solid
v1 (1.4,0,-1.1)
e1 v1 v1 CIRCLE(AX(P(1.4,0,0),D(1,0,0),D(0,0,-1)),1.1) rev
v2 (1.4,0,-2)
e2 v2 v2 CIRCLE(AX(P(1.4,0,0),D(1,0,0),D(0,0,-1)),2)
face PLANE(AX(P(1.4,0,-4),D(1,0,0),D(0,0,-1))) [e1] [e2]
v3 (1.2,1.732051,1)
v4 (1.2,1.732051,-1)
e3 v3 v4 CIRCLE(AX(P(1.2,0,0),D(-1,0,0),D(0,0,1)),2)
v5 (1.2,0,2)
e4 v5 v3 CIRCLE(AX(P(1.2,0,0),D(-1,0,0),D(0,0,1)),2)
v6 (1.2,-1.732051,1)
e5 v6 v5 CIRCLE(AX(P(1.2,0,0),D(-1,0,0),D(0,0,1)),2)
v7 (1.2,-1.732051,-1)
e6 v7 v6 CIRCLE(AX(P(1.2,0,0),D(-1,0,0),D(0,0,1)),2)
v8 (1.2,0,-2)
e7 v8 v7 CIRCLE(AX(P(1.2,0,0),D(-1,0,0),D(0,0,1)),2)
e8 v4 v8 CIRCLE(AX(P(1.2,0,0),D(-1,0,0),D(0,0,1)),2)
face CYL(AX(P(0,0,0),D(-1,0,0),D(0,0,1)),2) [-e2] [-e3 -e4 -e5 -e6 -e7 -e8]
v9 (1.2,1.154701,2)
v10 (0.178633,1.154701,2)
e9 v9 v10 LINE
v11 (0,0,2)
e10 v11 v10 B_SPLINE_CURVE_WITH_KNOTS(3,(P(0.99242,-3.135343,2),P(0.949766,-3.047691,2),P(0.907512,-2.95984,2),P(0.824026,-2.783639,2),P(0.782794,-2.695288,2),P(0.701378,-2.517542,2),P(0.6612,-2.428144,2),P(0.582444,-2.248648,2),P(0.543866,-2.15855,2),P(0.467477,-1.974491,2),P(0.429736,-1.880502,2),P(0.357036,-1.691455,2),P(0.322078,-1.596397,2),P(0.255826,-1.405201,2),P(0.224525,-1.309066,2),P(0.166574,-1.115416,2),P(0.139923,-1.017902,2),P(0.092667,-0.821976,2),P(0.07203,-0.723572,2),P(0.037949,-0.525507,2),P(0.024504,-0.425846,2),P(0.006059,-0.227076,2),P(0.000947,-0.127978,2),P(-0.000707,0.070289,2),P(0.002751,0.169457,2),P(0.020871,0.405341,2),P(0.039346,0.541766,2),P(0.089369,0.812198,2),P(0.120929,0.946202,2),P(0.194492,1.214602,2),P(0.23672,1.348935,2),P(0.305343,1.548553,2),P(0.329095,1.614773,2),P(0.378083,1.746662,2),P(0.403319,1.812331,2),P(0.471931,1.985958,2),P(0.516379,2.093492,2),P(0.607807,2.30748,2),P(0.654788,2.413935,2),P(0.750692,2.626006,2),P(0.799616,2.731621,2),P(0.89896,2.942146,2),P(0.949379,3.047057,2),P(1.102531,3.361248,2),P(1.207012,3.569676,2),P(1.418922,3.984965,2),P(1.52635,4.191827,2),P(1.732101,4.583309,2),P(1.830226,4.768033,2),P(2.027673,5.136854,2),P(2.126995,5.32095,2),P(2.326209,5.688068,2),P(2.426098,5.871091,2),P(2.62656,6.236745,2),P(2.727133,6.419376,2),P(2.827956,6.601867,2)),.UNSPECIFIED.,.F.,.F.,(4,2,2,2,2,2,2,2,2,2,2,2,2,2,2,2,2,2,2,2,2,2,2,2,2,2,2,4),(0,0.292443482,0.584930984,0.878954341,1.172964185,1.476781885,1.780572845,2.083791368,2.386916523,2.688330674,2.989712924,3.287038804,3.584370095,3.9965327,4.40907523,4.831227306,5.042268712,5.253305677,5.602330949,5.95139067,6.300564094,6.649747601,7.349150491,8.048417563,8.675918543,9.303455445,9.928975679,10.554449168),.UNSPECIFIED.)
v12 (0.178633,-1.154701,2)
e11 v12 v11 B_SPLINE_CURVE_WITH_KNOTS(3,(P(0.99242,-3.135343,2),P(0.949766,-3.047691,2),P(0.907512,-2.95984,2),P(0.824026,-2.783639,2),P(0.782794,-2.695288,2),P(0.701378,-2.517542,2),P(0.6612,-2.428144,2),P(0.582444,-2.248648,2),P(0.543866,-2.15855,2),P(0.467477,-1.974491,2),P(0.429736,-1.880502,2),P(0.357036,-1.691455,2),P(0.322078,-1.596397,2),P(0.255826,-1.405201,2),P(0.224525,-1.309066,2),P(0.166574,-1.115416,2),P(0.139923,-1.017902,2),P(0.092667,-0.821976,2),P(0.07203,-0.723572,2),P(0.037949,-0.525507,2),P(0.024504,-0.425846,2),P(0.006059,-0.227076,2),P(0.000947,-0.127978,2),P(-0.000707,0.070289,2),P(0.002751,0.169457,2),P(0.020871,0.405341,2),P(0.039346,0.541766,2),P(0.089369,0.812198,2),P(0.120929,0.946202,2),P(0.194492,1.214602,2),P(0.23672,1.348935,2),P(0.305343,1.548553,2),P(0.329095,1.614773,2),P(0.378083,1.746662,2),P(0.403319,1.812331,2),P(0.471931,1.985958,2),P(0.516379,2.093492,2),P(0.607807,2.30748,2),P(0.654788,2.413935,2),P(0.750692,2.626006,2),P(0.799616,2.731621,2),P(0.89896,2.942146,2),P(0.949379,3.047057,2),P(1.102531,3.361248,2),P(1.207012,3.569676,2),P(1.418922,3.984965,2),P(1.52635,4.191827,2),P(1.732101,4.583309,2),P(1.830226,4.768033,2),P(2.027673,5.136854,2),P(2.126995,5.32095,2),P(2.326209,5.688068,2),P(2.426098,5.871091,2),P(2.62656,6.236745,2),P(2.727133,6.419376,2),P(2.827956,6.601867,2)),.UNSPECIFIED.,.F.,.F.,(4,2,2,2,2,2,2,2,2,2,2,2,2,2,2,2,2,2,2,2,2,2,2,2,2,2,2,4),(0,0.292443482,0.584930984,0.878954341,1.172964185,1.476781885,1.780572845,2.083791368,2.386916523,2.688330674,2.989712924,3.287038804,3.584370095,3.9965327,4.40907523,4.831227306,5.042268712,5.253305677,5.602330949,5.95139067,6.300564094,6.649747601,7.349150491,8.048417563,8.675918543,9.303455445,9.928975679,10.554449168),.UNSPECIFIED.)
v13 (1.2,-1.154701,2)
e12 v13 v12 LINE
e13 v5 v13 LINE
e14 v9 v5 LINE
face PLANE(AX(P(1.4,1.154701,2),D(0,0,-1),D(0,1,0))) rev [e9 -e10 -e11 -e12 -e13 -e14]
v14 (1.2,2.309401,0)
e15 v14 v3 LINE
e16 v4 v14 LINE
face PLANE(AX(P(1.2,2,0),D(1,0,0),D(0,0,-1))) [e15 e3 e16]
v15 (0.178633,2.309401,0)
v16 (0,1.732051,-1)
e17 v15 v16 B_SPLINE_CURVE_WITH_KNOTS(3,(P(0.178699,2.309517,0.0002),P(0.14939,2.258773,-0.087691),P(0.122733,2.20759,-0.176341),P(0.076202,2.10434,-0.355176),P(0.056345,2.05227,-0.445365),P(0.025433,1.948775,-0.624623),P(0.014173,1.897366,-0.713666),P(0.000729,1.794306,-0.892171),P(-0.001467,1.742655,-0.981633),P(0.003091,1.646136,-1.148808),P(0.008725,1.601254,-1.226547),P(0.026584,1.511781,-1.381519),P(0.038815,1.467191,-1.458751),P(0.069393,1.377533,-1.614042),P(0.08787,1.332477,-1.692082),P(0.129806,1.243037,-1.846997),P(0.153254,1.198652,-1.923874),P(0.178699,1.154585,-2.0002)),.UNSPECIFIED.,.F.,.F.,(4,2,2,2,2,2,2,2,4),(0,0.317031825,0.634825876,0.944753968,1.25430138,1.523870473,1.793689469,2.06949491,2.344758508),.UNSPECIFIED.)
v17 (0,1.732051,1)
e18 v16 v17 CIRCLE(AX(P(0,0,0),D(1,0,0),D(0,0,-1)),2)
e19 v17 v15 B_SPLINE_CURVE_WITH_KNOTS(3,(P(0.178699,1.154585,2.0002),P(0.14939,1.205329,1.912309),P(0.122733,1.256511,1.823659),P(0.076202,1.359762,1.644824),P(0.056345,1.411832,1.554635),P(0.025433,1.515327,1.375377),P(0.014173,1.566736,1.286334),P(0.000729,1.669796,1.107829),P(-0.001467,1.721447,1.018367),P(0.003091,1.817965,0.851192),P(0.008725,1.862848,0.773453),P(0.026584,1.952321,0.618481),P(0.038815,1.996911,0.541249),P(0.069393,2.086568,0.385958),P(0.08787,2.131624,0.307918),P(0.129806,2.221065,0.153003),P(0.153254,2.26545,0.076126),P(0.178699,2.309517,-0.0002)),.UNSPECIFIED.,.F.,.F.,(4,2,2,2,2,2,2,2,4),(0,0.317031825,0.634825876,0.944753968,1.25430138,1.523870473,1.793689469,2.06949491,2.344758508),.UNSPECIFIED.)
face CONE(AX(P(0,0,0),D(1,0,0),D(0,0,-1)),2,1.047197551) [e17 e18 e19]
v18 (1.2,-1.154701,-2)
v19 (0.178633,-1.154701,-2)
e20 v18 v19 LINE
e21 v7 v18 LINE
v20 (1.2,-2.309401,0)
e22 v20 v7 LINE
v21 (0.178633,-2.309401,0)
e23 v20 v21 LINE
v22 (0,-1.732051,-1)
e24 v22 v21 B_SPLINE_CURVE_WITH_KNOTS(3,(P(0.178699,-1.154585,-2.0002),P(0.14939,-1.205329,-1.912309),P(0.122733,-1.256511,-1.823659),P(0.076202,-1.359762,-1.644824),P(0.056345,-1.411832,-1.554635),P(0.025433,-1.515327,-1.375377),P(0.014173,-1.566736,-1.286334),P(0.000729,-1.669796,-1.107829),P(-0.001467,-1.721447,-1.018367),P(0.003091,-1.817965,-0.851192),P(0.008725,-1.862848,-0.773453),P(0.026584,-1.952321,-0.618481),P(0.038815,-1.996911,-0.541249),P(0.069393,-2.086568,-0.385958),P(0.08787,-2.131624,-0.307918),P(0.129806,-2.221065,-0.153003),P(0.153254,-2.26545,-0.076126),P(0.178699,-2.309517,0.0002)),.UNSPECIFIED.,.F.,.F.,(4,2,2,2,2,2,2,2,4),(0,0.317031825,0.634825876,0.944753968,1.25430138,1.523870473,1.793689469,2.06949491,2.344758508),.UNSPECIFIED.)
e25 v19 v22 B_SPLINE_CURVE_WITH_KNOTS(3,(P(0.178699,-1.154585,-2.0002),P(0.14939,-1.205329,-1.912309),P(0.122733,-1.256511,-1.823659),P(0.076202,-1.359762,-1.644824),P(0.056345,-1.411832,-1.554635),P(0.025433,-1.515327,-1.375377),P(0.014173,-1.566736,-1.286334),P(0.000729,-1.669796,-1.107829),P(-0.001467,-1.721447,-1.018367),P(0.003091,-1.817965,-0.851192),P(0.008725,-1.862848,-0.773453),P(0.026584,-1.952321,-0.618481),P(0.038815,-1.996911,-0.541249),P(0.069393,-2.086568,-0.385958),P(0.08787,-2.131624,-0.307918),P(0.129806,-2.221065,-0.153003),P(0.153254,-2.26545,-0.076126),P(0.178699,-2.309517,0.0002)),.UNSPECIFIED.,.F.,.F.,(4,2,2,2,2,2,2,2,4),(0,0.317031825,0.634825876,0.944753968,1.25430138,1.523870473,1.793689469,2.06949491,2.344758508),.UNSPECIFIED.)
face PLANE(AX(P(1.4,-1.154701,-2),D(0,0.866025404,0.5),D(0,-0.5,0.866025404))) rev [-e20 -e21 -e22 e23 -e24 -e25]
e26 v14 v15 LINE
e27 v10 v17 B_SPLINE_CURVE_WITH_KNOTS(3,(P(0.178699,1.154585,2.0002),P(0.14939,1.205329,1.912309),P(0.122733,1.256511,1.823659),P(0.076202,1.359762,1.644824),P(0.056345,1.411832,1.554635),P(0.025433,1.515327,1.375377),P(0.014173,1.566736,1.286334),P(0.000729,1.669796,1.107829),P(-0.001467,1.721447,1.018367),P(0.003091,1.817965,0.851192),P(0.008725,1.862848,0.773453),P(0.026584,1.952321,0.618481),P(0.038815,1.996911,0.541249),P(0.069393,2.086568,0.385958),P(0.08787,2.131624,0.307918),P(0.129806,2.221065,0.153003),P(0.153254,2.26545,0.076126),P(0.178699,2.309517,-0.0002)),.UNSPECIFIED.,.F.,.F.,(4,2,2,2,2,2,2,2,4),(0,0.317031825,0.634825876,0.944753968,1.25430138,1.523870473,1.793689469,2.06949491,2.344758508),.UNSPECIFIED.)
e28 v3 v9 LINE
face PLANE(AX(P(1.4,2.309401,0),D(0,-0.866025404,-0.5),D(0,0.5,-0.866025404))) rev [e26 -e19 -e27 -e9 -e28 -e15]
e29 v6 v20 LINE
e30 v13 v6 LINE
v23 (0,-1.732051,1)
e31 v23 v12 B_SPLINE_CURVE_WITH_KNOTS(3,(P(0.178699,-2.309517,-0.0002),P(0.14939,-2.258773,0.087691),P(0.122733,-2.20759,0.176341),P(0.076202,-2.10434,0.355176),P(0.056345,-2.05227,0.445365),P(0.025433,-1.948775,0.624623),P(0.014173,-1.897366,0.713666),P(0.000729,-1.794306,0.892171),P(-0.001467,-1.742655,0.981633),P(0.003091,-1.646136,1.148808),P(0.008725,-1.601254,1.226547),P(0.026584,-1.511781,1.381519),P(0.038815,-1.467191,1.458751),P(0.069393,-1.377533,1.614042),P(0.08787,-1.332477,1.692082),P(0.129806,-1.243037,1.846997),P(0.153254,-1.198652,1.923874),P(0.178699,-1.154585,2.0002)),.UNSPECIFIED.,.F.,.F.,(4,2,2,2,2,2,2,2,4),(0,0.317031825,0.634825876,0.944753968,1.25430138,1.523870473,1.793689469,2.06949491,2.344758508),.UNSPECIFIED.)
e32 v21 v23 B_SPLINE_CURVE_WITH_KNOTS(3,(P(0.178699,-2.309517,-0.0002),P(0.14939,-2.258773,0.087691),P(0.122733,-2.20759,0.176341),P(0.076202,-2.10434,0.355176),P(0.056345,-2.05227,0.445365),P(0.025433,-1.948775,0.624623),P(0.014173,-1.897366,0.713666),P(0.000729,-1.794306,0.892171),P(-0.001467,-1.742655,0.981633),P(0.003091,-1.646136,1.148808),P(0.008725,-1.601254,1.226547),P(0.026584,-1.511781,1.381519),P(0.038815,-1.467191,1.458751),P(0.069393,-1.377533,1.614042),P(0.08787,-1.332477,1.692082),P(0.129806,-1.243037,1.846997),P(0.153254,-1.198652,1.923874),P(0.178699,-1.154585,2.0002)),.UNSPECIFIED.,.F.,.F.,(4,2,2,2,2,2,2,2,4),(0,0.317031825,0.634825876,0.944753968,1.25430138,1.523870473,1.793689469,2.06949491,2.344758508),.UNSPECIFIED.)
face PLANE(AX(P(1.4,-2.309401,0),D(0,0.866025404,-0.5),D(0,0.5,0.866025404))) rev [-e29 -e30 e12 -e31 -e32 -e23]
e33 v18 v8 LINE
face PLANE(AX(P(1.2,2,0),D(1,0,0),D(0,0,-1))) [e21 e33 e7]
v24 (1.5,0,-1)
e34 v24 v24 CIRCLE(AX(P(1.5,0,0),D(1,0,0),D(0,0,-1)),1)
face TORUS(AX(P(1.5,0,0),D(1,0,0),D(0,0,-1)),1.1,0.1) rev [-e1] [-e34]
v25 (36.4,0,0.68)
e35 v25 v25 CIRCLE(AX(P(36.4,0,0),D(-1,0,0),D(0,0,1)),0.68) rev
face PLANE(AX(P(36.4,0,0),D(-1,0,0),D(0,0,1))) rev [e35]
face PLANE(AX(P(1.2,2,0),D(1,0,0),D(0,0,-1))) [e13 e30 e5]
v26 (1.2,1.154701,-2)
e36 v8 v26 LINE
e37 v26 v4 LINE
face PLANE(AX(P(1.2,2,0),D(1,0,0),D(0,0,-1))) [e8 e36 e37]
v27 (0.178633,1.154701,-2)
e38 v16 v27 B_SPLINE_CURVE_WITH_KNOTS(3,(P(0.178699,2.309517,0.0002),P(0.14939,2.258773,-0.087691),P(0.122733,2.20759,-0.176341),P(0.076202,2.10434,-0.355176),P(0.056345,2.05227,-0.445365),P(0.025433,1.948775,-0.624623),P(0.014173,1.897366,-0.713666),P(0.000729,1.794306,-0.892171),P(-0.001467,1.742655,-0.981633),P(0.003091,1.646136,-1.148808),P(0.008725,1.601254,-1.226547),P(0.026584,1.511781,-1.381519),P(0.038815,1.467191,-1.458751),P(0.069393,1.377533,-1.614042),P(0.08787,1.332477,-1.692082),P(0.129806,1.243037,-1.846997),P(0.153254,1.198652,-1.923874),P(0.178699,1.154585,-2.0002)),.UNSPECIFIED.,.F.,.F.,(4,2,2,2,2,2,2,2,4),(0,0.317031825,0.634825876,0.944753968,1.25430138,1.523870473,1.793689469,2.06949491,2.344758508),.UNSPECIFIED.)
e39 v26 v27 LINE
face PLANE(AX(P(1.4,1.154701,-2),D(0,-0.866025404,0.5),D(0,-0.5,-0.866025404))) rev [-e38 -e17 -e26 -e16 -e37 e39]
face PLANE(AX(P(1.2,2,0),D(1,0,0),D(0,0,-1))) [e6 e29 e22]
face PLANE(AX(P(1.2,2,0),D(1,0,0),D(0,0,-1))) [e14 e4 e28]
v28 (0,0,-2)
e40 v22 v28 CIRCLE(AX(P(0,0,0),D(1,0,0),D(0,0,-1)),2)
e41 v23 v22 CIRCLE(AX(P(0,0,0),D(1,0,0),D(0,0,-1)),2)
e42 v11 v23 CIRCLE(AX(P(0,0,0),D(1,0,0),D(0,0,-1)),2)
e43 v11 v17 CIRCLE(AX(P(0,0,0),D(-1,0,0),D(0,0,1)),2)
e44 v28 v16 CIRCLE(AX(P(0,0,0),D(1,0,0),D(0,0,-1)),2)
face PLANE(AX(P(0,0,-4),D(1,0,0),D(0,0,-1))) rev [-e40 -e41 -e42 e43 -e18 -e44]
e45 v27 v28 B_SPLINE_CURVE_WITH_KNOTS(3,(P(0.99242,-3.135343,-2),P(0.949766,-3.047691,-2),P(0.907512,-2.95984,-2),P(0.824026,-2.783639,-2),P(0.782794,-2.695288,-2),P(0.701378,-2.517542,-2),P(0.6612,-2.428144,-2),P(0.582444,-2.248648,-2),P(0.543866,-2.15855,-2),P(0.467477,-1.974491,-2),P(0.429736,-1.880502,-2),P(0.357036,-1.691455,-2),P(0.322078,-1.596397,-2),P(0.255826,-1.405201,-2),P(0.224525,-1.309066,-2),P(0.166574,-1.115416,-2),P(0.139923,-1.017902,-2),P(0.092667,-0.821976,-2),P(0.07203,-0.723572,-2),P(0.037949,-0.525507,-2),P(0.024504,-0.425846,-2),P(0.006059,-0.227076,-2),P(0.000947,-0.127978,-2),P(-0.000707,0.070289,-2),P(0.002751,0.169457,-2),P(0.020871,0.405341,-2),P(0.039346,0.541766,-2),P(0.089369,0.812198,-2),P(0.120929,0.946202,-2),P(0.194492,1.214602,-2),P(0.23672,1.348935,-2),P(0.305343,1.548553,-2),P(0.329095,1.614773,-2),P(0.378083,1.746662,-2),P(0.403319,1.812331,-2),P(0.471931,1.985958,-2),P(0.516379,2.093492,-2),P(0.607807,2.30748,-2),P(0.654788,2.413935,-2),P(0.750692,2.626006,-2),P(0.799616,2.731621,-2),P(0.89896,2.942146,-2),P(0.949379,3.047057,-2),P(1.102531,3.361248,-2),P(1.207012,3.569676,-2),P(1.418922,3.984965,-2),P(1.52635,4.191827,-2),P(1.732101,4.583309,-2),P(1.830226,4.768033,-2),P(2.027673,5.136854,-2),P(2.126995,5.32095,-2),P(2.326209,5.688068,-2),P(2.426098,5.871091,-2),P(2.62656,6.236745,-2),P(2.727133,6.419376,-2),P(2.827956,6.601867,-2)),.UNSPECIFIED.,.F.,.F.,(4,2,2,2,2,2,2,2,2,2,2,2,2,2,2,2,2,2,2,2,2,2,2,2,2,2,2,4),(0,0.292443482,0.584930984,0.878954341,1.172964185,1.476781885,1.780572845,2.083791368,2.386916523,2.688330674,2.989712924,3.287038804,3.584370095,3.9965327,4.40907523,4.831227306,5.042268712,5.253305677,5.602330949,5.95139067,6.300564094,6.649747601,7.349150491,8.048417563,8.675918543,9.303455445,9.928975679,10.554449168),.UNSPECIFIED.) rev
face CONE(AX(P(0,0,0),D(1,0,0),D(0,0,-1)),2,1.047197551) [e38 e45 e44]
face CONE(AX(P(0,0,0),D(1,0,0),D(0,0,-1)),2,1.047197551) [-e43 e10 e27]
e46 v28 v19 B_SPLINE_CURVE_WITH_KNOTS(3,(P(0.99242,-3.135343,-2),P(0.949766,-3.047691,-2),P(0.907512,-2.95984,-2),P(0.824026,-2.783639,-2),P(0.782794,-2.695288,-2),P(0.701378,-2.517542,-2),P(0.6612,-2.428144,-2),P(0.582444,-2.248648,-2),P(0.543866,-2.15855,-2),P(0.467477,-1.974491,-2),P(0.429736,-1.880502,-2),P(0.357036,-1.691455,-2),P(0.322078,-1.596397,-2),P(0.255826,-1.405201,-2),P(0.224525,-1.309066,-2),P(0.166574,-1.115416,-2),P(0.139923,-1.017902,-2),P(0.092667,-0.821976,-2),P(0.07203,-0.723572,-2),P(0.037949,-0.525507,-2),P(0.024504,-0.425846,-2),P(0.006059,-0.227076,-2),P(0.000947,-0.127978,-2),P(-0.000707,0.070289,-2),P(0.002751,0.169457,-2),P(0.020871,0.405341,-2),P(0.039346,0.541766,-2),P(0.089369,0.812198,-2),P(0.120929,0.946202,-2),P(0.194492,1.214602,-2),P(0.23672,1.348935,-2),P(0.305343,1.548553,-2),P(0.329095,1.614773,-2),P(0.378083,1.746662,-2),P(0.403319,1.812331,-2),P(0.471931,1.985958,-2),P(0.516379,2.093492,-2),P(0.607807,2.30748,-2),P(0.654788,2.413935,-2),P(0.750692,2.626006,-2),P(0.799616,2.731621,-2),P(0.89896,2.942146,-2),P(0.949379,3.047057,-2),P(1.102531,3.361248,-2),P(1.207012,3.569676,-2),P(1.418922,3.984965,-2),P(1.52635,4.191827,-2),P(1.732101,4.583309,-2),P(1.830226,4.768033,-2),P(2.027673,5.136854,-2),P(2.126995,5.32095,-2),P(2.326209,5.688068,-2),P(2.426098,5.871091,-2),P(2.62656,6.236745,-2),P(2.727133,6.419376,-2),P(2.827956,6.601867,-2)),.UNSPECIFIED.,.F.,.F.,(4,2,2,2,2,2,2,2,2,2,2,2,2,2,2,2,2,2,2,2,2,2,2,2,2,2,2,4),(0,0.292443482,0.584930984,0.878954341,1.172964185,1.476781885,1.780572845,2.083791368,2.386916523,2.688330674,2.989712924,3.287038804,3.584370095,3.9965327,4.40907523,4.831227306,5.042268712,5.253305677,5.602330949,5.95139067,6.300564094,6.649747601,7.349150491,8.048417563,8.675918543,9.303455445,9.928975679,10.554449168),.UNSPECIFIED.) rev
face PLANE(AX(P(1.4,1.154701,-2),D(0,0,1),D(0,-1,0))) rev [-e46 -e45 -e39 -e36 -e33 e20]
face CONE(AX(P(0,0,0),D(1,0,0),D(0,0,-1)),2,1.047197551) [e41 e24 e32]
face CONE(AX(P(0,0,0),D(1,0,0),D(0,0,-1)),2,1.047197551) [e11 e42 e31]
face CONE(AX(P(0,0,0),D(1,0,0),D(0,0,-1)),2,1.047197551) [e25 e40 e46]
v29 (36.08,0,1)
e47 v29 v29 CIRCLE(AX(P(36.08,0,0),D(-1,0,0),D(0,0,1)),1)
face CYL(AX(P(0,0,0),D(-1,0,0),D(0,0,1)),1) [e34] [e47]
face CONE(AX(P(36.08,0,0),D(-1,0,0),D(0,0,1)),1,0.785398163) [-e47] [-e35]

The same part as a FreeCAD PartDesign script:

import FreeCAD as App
import Part
import Sketcher

V = App.Vector
Q = App.Units.Quantity


def edges_at(feature, points):
    """Names of the edges that pass closest to the given points."""
    edges = feature.Shape.Edges
    near = lambda p: min(range(len(edges)), key=lambda i: edges[i].distToShape(Part.Vertex(*p))[0])
    return sorted({f"Edge{near(p) + 1}" for p in points})


def add_polygon(sketch, points):
    """Adds a closed chain of lines whose ends are joined by coincident constraints."""
    first, n = sketch.GeometryCount, len(points)
    for a, b in zip(points, points[1:] + points[:1]):
        sketch.addGeometry(Part.LineSegment(App.Vector(*a, 0), App.Vector(*b, 0)), False)
    for i in range(n):
        sketch.addConstraint(Sketcher.Constraint("Coincident", first + i, 2, first + (i + 1) % n, 1))

doc = App.newDocument("Part")
body = doc.addObject("PartDesign::Body", "Body")

sketch1 = body.newObject("Sketcher::SketchObject", "Sketch")
sketch1.AttachmentSupport = (doc.getObject("YZ_Plane"), [""])
sketch1.MapMode = "FlatFace"
add_polygon(sketch1, [(-1.154701, -2), (1.154701, -2), (2.309401, 0), (1.154701, 2), (-1.154701, 2), (-2.309401, 0)])
sketch1.addConstraint([
    Sketcher.Constraint("Horizontal", 0),
    Sketcher.Constraint("Horizontal", 3),
    Sketcher.Constraint("Symmetric", 0, 2, 3, 2, -1, 1),
    Sketcher.Constraint("Symmetric", 1, 2, 4, 2, -1, 1),
    Sketcher.Constraint("PointOnObject", 1, 2, -1),
    Sketcher.Constraint("Parallel", 2, 5),
    Sketcher.Constraint("Vertical", 0, 2, 2, 2),
    Sketcher.Constraint("Angle", 1, Q("60 deg")),
    Sketcher.Constraint("DistanceY", 0, 2, -1, 1, 2.0),
    Sketcher.Constraint("DistanceX", 0, 1, 0, 2, 2.309401),
])
pad1 = body.newObject("PartDesign::Pad", "Pad")
pad1.Profile = sketch1
pad1.Length = 1.4

sketch2 = body.newObject("Sketcher::SketchObject", "Sketch001")
sketch2.AttachmentSupport = (doc.getObject("XY_Plane"), [""])
sketch2.MapMode = "FlatFace"
add_polygon(sketch2, [(0, 0), (36.4, 0), (36.4, 1), (0, 1)])
sketch2.addConstraint([
    Sketcher.Constraint("Horizontal", 0),
    Sketcher.Constraint("Vertical", 1),
    Sketcher.Constraint("Horizontal", 2),
    Sketcher.Constraint("Vertical", 3),
    Sketcher.Constraint("Coincident", 3, 2, -1, 1),
    Sketcher.Constraint("DistanceY", 1, 1, 1, 2, 1.0),
    Sketcher.Constraint("DistanceX", 0, 1, 0, 2, 36.4),
])
revolution = body.newObject("PartDesign::Revolution", "Revolution")
revolution.Profile = sketch2
revolution.ReferenceAxis = (sketch2, ["H_Axis"])
revolution.Angle = 360

sketch3 = body.newObject("Sketcher::SketchObject", "Sketch002")
sketch3.AttachmentSupport = (doc.getObject("XY_Plane"), [""])
sketch3.MapMode = "FlatFace"
add_polygon(sketch3, [(0, 2), (3.065384, 7.309401), (3.065384, 12.309401), (-10, 12.309401), (-10, 2)])
sketch3.addConstraint([
    Sketcher.Constraint("Vertical", 1),
    Sketcher.Constraint("Horizontal", 2),
    Sketcher.Constraint("Vertical", 3),
    Sketcher.Constraint("Horizontal", 4),
    Sketcher.Constraint("PointOnObject", 4, 2, -2),
    Sketcher.Constraint("DistanceX", 4, 1, 4, 2, 10.0),
    Sketcher.Constraint("DistanceY", 1, 1, 1, 2, 5.0),
    Sketcher.Constraint("Angle", 0, Q("60 deg")),
    Sketcher.Constraint("DistanceY", -1, 1, 3, 2, 2.0),
    Sketcher.Constraint("DistanceY", 3, 2, 3, 1, 10.309401),
])
groove = body.newObject("PartDesign::Groove", "Groove")
groove.Profile = sketch3
groove.ReferenceAxis = (sketch3, ["H_Axis"])
groove.Angle = 360

sketch4 = body.newObject("Sketcher::SketchObject", "Sketch003")
sketch4.AttachmentSupport = (doc.getObject("XY_Plane"), [""])
sketch4.MapMode = "FlatFace"
add_polygon(sketch4, [(-1.665384, 7.309401), (1.4, 2), (8.334616, 2), (8.334616, 12.309401), (-1.665384, 12.309401)])
sketch4.addConstraint([
    Sketcher.Constraint("Horizontal", 1),
    Sketcher.Constraint("Vertical", 2),
    Sketcher.Constraint("Horizontal", 3),
    Sketcher.Constraint("Vertical", 4),
    Sketcher.Constraint("DistanceX", 3, 2, 3, 1, 10.0),
    Sketcher.Constraint("DistanceY", 4, 2, 4, 1, 5.0),
    Sketcher.Constraint("Angle", 0, Q("-60 deg")),
    Sketcher.Constraint("DistanceY", -1, 1, 0, 2, 2.0),
    Sketcher.Constraint("DistanceX", -1, 1, 0, 2, 1.4),
    Sketcher.Constraint("DistanceY", 2, 1, 2, 2, 10.309401),
])
groove2 = body.newObject("PartDesign::Groove", "Groove001")
groove2.Profile = sketch4
groove2.ReferenceAxis = (sketch4, ["H_Axis"])
groove2.Angle = 360

sketch5 = body.newObject("Sketcher::SketchObject", "Sketch004")
sketch5.AttachmentSupport = (doc.getObject("XY_Plane"), [""])
sketch5.MapMode = "FlatFace"
add_polygon(sketch5, [(1.2, 12.309401), (1.2, 2), (1.4, 2), (1.4, 12.309401)])
sketch5.addConstraint([
    Sketcher.Constraint("Vertical", 0),
    Sketcher.Constraint("Horizontal", 1),
    Sketcher.Constraint("Vertical", 2),
    Sketcher.Constraint("Horizontal", 3),
    Sketcher.Constraint("DistanceX", 1, 1, 1, 2, 0.2),
    Sketcher.Constraint("DistanceY", -1, 1, 0, 2, 2.0),
    Sketcher.Constraint("DistanceX", -1, 1, 0, 2, 1.2),
    Sketcher.Constraint("DistanceY", 0, 2, 0, 1, 10.309401),
])
groove3 = body.newObject("PartDesign::Groove", "Groove002")
groove3.Profile = sketch5
groove3.ReferenceAxis = (sketch5, ["H_Axis"])
groove3.Angle = 360
doc.recompute()

chamfer = body.newObject("PartDesign::Chamfer", "Chamfer")
chamfer.Base = (groove3, edges_at(groove3, [(36.4, 0, -1)]))
chamfer.Size = 0.32
doc.recompute()

fillet = body.newObject("PartDesign::Fillet", "Fillet")
fillet.Base = (chamfer, edges_at(chamfer, [(1.4, 0, -1)]))
fillet.Radius = 0.1

doc.recompute()
